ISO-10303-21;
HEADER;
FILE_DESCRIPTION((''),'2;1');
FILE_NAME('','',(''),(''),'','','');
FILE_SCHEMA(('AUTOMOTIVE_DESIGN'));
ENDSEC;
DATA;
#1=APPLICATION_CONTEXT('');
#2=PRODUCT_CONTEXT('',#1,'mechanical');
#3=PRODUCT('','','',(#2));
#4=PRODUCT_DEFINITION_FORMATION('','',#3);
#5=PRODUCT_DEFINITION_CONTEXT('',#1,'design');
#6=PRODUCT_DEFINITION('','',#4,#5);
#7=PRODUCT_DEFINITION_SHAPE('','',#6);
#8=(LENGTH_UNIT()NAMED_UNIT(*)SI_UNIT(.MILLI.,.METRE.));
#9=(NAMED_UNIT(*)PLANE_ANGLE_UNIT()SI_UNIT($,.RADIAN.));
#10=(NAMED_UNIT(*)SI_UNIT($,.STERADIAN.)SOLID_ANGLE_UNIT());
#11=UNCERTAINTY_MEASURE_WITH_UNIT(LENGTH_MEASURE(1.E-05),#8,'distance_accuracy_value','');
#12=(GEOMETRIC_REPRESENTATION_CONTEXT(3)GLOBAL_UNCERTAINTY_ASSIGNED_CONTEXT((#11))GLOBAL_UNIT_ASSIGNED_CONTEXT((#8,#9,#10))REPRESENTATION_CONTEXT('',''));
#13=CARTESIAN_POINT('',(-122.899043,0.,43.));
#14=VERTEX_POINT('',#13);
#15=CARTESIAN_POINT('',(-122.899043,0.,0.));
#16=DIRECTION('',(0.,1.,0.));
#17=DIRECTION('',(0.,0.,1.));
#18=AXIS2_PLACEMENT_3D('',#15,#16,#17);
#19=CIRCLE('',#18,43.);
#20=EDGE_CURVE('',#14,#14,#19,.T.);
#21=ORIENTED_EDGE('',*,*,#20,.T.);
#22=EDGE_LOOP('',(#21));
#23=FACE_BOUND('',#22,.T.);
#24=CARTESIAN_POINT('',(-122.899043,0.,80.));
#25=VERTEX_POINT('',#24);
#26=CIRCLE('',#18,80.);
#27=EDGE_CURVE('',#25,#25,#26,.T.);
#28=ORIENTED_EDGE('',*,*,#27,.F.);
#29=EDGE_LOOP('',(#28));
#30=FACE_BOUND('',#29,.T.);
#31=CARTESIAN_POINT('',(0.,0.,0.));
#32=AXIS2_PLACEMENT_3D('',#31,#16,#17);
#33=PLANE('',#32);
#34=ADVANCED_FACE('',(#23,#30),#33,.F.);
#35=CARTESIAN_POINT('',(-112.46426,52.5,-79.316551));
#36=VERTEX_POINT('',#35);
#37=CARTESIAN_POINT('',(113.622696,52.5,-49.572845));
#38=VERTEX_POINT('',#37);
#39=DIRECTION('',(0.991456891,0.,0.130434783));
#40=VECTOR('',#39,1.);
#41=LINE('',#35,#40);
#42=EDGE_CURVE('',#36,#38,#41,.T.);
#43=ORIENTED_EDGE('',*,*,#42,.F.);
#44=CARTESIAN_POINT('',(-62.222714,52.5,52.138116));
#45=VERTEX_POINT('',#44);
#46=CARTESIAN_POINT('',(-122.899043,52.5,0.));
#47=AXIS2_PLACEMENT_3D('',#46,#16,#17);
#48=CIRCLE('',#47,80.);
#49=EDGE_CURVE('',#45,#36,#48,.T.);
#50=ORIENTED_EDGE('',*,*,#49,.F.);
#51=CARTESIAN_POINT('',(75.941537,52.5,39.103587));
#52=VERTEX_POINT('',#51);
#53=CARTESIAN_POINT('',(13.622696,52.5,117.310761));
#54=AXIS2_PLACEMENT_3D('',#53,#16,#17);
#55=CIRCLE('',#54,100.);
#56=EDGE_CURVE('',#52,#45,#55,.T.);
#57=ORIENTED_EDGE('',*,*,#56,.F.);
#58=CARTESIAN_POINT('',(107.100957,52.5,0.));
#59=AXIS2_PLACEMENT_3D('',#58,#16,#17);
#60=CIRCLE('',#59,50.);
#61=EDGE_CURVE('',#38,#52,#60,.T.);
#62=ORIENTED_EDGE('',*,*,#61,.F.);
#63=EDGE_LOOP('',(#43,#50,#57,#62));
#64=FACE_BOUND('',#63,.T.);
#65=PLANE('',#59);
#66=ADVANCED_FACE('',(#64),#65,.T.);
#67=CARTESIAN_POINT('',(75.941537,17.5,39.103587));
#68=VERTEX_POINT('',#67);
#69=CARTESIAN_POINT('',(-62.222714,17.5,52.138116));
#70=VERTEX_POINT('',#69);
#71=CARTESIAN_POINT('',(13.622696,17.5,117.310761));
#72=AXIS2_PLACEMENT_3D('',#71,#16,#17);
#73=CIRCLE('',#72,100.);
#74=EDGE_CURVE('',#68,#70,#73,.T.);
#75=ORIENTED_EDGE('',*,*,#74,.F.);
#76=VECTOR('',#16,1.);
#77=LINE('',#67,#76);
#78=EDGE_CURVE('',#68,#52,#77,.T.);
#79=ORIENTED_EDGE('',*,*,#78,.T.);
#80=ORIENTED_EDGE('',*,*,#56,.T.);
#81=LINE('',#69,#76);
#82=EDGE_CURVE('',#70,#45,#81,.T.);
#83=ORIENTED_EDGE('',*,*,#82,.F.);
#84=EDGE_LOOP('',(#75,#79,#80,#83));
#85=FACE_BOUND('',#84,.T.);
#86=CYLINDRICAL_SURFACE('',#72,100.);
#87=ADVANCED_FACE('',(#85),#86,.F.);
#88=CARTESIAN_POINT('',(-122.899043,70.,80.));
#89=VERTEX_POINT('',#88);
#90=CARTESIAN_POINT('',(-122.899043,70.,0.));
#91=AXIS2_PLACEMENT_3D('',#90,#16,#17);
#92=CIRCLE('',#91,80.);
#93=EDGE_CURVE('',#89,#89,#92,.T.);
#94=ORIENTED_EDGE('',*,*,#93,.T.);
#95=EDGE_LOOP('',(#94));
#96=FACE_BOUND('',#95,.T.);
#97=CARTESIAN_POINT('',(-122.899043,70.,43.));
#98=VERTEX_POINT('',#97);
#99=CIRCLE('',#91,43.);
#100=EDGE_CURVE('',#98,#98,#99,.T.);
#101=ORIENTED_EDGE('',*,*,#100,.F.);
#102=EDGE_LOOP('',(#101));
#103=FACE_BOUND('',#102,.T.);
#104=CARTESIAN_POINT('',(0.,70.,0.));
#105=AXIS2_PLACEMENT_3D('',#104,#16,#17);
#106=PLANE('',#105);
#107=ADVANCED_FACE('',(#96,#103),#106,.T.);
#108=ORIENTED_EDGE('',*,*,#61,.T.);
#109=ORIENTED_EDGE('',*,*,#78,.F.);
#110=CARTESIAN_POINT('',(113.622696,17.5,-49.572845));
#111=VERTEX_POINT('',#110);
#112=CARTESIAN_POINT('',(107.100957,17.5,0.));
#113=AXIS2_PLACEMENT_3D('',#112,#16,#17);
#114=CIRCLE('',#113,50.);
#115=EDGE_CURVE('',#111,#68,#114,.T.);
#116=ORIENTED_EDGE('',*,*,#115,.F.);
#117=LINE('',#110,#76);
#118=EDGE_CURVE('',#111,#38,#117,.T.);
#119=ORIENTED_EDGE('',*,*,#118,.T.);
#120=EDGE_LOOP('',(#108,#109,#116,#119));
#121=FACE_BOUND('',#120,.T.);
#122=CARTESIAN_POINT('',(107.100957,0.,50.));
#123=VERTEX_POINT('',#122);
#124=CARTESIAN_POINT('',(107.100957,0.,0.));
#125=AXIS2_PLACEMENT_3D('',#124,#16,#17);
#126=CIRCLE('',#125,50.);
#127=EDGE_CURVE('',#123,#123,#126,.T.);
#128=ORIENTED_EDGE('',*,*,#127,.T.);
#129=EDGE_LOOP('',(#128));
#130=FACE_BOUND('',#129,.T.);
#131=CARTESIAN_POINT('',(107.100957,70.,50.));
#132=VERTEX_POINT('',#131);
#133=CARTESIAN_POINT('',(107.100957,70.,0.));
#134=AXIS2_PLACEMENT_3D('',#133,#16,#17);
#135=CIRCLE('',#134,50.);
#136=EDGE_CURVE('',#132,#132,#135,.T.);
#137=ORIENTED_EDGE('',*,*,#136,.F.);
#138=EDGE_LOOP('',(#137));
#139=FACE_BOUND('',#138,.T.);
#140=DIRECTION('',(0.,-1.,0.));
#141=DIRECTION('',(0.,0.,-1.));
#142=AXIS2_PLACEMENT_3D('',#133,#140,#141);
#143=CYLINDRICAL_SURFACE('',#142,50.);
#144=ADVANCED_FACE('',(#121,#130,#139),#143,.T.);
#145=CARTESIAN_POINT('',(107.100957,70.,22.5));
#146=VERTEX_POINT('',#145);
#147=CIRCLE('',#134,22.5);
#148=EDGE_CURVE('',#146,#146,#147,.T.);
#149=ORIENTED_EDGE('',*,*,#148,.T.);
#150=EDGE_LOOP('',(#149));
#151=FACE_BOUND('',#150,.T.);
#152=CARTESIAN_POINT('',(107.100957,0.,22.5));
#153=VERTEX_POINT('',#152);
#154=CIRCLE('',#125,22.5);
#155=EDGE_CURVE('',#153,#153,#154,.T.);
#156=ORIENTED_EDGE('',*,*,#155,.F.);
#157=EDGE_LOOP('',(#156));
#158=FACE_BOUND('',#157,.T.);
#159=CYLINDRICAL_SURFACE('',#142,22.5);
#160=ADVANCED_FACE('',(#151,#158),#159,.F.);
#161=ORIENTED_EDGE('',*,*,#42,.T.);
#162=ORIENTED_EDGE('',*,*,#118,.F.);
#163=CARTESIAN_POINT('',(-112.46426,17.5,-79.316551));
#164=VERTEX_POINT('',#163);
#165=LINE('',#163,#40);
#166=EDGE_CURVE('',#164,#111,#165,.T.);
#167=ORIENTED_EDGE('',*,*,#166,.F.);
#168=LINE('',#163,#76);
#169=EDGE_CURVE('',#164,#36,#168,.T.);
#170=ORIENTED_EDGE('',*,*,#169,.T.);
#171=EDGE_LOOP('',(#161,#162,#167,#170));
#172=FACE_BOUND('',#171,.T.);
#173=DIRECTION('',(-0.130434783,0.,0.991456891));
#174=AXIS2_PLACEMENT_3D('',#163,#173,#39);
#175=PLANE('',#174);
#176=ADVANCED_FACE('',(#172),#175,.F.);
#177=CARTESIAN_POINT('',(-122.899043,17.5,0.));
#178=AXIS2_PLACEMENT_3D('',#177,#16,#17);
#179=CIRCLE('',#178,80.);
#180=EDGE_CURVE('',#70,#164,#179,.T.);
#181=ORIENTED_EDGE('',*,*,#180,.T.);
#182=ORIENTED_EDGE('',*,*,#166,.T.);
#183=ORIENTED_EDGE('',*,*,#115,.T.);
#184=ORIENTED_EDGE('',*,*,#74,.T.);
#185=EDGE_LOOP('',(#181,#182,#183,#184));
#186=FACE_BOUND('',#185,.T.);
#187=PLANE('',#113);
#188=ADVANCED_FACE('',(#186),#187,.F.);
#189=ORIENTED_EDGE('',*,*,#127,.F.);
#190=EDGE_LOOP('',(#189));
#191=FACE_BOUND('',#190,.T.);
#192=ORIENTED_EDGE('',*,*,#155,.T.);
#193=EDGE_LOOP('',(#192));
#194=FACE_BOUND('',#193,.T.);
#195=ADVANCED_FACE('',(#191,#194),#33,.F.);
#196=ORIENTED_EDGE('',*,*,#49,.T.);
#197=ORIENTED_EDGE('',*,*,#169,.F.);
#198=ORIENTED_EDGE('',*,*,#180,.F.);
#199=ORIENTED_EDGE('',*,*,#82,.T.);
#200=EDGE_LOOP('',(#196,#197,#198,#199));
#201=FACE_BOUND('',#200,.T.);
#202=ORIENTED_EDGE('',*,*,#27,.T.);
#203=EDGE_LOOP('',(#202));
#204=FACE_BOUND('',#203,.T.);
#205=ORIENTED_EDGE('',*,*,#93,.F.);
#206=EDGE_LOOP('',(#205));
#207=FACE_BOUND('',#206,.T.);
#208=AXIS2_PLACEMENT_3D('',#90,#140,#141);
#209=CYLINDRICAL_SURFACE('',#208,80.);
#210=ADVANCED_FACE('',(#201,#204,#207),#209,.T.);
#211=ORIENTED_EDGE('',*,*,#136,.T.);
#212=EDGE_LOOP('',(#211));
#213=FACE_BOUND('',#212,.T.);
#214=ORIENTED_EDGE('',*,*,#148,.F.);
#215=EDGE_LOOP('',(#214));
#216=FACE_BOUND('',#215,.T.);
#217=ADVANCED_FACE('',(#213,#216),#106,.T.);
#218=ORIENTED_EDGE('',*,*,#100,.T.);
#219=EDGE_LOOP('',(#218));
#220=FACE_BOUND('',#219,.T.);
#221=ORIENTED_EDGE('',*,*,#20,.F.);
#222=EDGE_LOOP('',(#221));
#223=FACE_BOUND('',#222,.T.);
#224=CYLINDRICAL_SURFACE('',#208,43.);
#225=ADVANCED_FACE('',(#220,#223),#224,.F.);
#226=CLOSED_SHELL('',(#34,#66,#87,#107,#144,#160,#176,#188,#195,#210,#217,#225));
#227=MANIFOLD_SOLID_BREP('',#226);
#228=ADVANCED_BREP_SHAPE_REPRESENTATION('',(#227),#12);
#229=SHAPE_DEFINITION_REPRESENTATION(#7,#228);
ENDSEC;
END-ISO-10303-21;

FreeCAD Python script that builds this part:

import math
import FreeCAD as App
import Part
import Sketcher
from FreeCAD import Vector

doc = App.newDocument("Part")
body = doc.addObject("PartDesign::Body", "Body")

# Sketch on XZ plane
sketch1 = body.newObject("Sketcher::SketchObject", "Sketch")
sketch1.AttachmentSupport = (doc.getObject("XZ_Plane"), [""])
sketch1.MapMode = "FlatFace"
sketch1.addGeometry([
    Part.Circle(Vector(-123, 0, 0), Vector(0, 0, 1), 80),
    Part.Circle(Vector(-123, 0, 0), Vector(0, 0, 1), 43),
], False)
sketch1.addConstraint([
    Sketcher.Constraint("Coincident", 1, 3, 0, 3),
    Sketcher.Constraint("PointOnObject", 0, 3, -1),
    Sketcher.Constraint("Diameter", 0, 160.0),
    Sketcher.Constraint("Diameter", 1, 86.0),
    Sketcher.Constraint("DistanceX", 0, 3, -1, 1, 122.899043),
])
pad1 = body.newObject("PartDesign::Pad", "Pad")
pad1.Profile = sketch1
pad1.Length = 70
pad1.Reversed = True
body2 = doc.addObject("PartDesign::Body", "Body001")

# Sketch on XZ plane
sketch2 = body2.newObject("Sketcher::SketchObject", "Sketch001")
sketch2.AttachmentSupport = (doc.getObject("XZ_Plane001"), [""])
sketch2.MapMode = "FlatFace"
sketch2.addGeometry([
    Part.Circle(Vector(107, 0, 0), Vector(0, 0, 1), 50),
    Part.Circle(Vector(107, 0, 0), Vector(0, 0, 1), 22),
], False)
sketch2.addConstraint([
    Sketcher.Constraint("Coincident", 1, 3, 0, 3),
    Sketcher.Constraint("PointOnObject", 0, 3, -1),
    Sketcher.Constraint("Diameter", 0, 100.0),
    Sketcher.Constraint("Diameter", 1, 45.0),
    Sketcher.Constraint("DistanceX", -1, 1, 0, 3, 107.100957),
])
pad2 = body2.newObject("PartDesign::Pad", "Pad001")
pad2.Profile = sketch2
pad2.Length = 70
pad2.Reversed = True
body.AllowCompound = True
doc.recompute()

boolean = body.newObject("PartDesign::Boolean", "Boolean")
boolean.Type = "Fuse"
boolean.addObjects([body2])

# Sketch on XZ plane
sketch3 = body.newObject("Sketcher::SketchObject", "Sketch002")
sketch3.AttachmentSupport = (doc.getObject("XZ_Plane"), [""])
sketch3.MapMode = "FlatFace"
sketch3.AttachmentOffset = App.Placement(Vector(0, 0, -17.5), App.Rotation())
sketch3.addGeometry([
    Part.LineSegment(Vector(114, -50, 0), Vector(-112, -79, 0)),
    Part.ArcOfCircle(Part.Circle(Vector(-123, 0, 0), Vector(0, 0, 1), 80), math.radians(-83), math.radians(41)),
    Part.ArcOfCircle(Part.Circle(Vector(14, 117, 0), Vector(0, 0, 1), 100), math.radians(-139), math.radians(-51)),
    Part.ArcOfCircle(Part.Circle(Vector(107, 0, 0), Vector(0, 0, 1), 50), math.radians(129), math.radians(277)),
], False)
sketch3.addConstraint([
    Sketcher.Constraint("Tangent", 0, 2, 1, 1),
    Sketcher.Constraint("Tangent", 1, 2, 2, 1),
    Sketcher.Constraint("Tangent", 2, 2, 3, 1),
    Sketcher.Constraint("Tangent", 3, 2, 0, 1),
    Sketcher.Constraint("PointOnObject", 1, 3, -1),
    Sketcher.Constraint("PointOnObject", 3, 3, -1),
    Sketcher.Constraint("Radius", 1, 80.0),
    Sketcher.Constraint("Radius", 2, 100.0),
    Sketcher.Constraint("Radius", 3, 50.0),
    Sketcher.Constraint("DistanceX", 1, 3, 3, 3, 230.0),
    Sketcher.Constraint("DistanceX", 0, 2, -1, 1, 112.46426),
])
pad3 = body.newObject("PartDesign::Pad", "Pad002")
pad3.Profile = sketch3
pad3.Length = 35
pad3.Reversed = True

doc.recompute()
